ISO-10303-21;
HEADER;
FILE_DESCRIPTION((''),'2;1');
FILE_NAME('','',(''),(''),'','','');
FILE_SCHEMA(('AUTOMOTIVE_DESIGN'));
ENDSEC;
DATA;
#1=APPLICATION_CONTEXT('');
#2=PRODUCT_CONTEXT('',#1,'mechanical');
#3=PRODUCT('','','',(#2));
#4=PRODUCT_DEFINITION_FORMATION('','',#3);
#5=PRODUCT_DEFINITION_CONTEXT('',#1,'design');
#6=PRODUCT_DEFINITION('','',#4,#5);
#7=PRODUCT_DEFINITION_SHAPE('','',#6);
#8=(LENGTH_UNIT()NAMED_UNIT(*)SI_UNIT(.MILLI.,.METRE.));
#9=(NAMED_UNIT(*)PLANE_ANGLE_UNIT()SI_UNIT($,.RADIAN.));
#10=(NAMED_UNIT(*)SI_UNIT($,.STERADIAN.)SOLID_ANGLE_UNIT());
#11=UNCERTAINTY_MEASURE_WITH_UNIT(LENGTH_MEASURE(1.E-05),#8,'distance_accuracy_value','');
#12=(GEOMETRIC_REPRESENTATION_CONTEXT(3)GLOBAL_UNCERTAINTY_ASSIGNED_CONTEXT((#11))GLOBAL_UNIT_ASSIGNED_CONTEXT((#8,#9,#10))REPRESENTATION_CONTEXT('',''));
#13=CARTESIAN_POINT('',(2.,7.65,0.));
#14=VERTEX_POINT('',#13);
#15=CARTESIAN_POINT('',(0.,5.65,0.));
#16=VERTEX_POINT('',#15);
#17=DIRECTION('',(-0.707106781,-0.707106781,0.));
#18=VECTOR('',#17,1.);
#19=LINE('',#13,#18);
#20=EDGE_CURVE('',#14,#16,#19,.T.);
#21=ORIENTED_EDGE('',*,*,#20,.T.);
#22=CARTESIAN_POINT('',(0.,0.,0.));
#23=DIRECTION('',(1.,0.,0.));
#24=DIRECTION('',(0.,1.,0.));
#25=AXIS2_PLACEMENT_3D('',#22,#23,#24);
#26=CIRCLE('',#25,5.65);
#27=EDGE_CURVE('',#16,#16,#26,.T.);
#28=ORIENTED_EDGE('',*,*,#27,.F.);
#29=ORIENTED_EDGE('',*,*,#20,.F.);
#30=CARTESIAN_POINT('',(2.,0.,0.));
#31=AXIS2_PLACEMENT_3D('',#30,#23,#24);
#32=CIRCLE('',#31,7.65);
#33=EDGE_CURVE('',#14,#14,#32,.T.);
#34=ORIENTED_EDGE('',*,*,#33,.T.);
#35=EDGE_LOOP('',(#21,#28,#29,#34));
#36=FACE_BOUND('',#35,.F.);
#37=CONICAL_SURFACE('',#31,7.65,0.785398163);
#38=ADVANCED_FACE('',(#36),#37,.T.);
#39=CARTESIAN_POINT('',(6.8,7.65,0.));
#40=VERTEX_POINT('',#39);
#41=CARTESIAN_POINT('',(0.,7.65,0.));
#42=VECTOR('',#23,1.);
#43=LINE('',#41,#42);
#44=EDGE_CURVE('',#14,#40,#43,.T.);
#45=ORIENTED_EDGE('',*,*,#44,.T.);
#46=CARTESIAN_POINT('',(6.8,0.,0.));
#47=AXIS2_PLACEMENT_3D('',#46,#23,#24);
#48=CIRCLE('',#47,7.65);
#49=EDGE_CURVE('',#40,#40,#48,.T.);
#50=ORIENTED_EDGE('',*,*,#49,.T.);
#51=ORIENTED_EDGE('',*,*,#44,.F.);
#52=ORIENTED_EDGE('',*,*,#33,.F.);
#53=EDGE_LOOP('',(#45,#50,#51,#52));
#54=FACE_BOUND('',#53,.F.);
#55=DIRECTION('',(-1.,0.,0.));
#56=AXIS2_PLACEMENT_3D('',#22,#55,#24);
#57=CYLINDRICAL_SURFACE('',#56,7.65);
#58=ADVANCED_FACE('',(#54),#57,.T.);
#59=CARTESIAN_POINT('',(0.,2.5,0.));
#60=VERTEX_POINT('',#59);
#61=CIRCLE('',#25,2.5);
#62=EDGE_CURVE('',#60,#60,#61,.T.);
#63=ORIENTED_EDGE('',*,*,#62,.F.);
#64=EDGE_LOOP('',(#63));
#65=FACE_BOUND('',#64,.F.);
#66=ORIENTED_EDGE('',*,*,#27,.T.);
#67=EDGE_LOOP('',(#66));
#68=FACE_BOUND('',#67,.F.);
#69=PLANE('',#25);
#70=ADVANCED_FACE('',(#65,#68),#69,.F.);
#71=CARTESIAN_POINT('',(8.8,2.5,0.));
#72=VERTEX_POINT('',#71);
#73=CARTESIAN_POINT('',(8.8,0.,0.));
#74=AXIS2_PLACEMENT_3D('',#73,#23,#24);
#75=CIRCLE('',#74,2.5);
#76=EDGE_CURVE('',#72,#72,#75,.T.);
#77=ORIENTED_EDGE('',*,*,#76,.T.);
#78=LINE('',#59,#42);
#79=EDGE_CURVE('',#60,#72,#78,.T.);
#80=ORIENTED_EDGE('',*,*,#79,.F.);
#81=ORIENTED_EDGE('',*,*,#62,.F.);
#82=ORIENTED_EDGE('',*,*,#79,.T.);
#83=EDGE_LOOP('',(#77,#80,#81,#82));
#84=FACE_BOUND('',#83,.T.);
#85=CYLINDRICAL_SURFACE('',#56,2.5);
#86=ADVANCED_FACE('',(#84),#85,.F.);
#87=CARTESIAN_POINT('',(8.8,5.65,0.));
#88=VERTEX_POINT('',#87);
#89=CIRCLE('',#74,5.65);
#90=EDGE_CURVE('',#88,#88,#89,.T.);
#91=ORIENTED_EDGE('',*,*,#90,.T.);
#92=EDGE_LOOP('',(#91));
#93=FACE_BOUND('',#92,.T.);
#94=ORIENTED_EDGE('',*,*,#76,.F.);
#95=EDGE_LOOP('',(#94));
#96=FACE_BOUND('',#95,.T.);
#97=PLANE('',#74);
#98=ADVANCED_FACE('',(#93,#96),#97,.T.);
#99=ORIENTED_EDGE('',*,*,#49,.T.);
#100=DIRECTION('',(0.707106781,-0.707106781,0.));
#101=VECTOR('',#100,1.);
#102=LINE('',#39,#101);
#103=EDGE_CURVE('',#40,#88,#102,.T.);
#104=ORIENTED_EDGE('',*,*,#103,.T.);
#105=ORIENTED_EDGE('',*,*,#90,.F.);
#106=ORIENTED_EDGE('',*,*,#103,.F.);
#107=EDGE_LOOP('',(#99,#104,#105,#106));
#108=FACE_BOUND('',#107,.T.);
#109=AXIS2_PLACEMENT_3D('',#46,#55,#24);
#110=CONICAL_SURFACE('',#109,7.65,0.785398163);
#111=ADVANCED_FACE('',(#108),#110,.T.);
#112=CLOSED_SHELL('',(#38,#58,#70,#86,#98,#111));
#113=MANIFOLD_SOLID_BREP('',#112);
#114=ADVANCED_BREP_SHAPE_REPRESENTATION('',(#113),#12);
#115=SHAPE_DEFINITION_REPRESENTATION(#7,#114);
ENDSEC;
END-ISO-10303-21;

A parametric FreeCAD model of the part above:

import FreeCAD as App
import Part
import Sketcher

V = App.Vector


def edges_at(feature, points):
    """Names of the edges that pass closest to the given points."""
    edges = feature.Shape.Edges
    near = lambda p: min(range(len(edges)), key=lambda i: edges[i].distToShape(Part.Vertex(*p))[0])
    return sorted({f"Edge{near(p) + 1}" for p in points})

doc = App.newDocument("Part")
body = doc.addObject("PartDesign::Body", "Body")

# Sketch on YZ plane
sketch1 = body.newObject("Sketcher::SketchObject", "Sketch")
sketch1.AttachmentSupport = (doc.getObject("YZ_Plane"), [""])
sketch1.MapMode = "FlatFace"
sketch1.addGeometry([
    Part.Circle(V(0, 0, 0), V(0, 0, 1), 7.7),
    Part.Circle(V(0, 0, 0), V(0, 0, 1), 2.5),
], False)
sketch1.addConstraint([
    Sketcher.Constraint("Coincident", 0, 3, -1, 1),
    Sketcher.Constraint("Coincident", 1, 3, -1, 1),
    Sketcher.Constraint("Diameter", 1, 5.0),
    Sketcher.Constraint("Diameter", 0, 15.3),
])
pad1 = body.newObject("PartDesign::Pad", "Pad")
pad1.Profile = sketch1
pad1.Length = 8.8
doc.recompute()

chamfer = body.newObject("PartDesign::Chamfer", "Chamfer")
chamfer.Base = (pad1, edges_at(pad1, [(0, -7.132, -2.766), (8.8, -7.132, -2.766)]))
chamfer.Size = 2

doc.recompute()
